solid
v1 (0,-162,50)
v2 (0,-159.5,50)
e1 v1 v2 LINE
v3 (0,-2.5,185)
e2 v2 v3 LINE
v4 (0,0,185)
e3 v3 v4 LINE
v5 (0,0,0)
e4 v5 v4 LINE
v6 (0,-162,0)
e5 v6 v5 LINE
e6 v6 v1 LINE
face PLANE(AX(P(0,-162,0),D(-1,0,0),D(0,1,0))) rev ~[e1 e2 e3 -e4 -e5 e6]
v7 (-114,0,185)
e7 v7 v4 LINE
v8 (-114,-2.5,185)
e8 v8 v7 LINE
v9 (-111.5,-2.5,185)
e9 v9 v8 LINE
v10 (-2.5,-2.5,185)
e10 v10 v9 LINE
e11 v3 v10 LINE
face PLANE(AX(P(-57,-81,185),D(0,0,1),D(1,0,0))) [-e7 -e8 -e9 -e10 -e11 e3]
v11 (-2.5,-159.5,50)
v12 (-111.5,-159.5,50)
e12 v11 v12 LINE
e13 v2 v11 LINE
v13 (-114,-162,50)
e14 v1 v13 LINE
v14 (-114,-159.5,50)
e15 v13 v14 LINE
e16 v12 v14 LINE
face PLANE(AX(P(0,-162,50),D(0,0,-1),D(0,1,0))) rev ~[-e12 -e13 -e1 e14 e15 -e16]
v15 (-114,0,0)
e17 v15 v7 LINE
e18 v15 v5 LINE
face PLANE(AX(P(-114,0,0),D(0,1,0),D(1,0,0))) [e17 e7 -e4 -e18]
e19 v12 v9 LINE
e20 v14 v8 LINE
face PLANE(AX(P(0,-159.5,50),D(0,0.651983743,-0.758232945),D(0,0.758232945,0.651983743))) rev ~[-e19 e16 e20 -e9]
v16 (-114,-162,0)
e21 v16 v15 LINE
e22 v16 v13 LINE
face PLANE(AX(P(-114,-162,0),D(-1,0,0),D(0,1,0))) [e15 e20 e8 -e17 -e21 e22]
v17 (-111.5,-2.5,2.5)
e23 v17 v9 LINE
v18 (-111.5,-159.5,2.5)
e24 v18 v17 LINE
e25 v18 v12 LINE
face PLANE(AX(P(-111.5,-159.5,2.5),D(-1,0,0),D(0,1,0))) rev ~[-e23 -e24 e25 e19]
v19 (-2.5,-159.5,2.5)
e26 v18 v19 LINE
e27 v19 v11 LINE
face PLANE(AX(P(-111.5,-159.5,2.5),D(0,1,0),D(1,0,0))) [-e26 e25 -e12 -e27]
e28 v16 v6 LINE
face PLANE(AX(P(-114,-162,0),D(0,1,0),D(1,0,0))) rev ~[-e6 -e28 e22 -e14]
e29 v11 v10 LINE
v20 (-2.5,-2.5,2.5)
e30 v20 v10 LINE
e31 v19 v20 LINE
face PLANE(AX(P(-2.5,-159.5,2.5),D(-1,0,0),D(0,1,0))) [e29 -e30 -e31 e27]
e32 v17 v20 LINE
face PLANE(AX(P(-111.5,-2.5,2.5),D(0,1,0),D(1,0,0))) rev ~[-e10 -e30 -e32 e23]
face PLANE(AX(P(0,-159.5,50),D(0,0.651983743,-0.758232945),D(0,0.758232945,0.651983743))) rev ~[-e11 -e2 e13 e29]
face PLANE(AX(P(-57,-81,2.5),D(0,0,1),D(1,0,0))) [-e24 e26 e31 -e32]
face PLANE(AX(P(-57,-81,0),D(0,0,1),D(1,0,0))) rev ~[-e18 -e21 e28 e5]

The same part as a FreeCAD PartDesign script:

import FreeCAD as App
import Part
import Sketcher
from FreeCAD import Vector
Q = App.Units.Quantity


def add_polygon(sketch, points):
    """Adds a closed chain of lines whose ends are joined by coincident constraints."""
    first, n = sketch.GeometryCount, len(points)
    for a, b in zip(points, points[1:] + points[:1]):
        sketch.addGeometry(Part.LineSegment(App.Vector(*a, 0), App.Vector(*b, 0)), False)
    for i in range(n):
        sketch.addConstraint(Sketcher.Constraint("Coincident", first + i, 2, first + (i + 1) % n, 1))

doc = App.newDocument("Part")
body = doc.addObject("PartDesign::Body", "Body")

sketch1 = doc.addObject("Sketcher::SketchObject", "Sketch")
body.addObject(sketch1)
sketch1.AttachmentSupport = (doc.XY_Plane, [""])
sketch1.MapMode = "FlatFace"
add_polygon(sketch1, [(-114, 0), (-114, -162), (0, -162), (0, 0)])
sketch1.addConstraint(Sketcher.Constraint("Vertical", 0))
sketch1.addConstraint(Sketcher.Constraint("Horizontal", 1))
sketch1.addConstraint(Sketcher.Constraint("Vertical", 2))
sketch1.addConstraint(Sketcher.Constraint("Horizontal", 3))
sketch1.addConstraint(Sketcher.Constraint("Coincident", 2, 2, -1, 1))
sketch1.addConstraint(Sketcher.Constraint("DistanceX", 1, 1, 1, 2, Q("114 mm")))
sketch1.addConstraint(Sketcher.Constraint("DistanceY", 0, 2, 0, 1, Q("162 mm")))
pad1 = doc.addObject("PartDesign::Pad", "Pad")
body.addObject(pad1)
pad1.Profile = sketch1
pad1.Length = 185

sketch2 = doc.addObject("Sketcher::SketchObject", "Sketch001")
body.addObject(sketch2)
sketch2.AttachmentSupport = (doc.YZ_Plane, [""])
sketch2.MapMode = "FlatFace"
add_polygon(sketch2, [(-162, 185), (-162, 50), (-159.5, 50), (-2.5, 185)])
sketch2.addConstraint(Sketcher.Constraint("Vertical", 0))
sketch2.addConstraint(Sketcher.Constraint("Horizontal", 1))
sketch2.addConstraint(Sketcher.Constraint("Horizontal", 3))
sketch2.addConstraint(Sketcher.Constraint("DistanceY", 0, 2, 0, 1, Q("135 mm")))
sketch2.addConstraint(Sketcher.Constraint("DistanceX", 1, 1, 1, 2, Q("2.5 mm")))
sketch2.addConstraint(Sketcher.Constraint("DistanceX", 3, 2, 3, 1, Q("159.5 mm")))
sketch2.addConstraint(Sketcher.Constraint("DistanceX", 0, 2, -1, 1, Q("162 mm")))
sketch2.addConstraint(Sketcher.Constraint("DistanceY", -1, 1, 0, 2, Q("50 mm")))
pocket1 = doc.addObject("PartDesign::Pocket", "Pocket")
body.addObject(pocket1)
pocket1.Profile = sketch2
pocket1.Type = "ThroughAll"

sketch3 = doc.addObject("Sketcher::SketchObject", "Sketch002")
body.addObject(sketch3)
sketch3.AttachmentSupport = (doc.XY_Plane, [""])
sketch3.MapMode = "FlatFace"
sketch3.AttachmentOffset = App.Placement(Vector(0, 0, 2.5), App.Rotation())
add_polygon(sketch3, [(-112, -2), (-112, -160), (-2, -160), (-2, -2)])
sketch3.addConstraint(Sketcher.Constraint("Vertical", 0))
sketch3.addConstraint(Sketcher.Constraint("Horizontal", 1))
sketch3.addConstraint(Sketcher.Constraint("Vertical", 2))
sketch3.addConstraint(Sketcher.Constraint("Horizontal", 3))
sketch3.addConstraint(Sketcher.Constraint("DistanceX", 1, 1, 1, 2, Q("109 mm")))
sketch3.addConstraint(Sketcher.Constraint("DistanceY", 0, 2, 0, 1, Q("157 mm")))
sketch3.addConstraint(Sketcher.Constraint("DistanceX", 0, 2, -1, 1, Q("111.5 mm")))
sketch3.addConstraint(Sketcher.Constraint("DistanceY", 0, 2, -1, 1, Q("159.5 mm")))
pocket2 = doc.addObject("PartDesign::Pocket", "Pocket001")
body.addObject(pocket2)
pocket2.Profile = sketch3
pocket2.Type = "ThroughAll"
pocket2.Reversed = True

doc.recompute()
